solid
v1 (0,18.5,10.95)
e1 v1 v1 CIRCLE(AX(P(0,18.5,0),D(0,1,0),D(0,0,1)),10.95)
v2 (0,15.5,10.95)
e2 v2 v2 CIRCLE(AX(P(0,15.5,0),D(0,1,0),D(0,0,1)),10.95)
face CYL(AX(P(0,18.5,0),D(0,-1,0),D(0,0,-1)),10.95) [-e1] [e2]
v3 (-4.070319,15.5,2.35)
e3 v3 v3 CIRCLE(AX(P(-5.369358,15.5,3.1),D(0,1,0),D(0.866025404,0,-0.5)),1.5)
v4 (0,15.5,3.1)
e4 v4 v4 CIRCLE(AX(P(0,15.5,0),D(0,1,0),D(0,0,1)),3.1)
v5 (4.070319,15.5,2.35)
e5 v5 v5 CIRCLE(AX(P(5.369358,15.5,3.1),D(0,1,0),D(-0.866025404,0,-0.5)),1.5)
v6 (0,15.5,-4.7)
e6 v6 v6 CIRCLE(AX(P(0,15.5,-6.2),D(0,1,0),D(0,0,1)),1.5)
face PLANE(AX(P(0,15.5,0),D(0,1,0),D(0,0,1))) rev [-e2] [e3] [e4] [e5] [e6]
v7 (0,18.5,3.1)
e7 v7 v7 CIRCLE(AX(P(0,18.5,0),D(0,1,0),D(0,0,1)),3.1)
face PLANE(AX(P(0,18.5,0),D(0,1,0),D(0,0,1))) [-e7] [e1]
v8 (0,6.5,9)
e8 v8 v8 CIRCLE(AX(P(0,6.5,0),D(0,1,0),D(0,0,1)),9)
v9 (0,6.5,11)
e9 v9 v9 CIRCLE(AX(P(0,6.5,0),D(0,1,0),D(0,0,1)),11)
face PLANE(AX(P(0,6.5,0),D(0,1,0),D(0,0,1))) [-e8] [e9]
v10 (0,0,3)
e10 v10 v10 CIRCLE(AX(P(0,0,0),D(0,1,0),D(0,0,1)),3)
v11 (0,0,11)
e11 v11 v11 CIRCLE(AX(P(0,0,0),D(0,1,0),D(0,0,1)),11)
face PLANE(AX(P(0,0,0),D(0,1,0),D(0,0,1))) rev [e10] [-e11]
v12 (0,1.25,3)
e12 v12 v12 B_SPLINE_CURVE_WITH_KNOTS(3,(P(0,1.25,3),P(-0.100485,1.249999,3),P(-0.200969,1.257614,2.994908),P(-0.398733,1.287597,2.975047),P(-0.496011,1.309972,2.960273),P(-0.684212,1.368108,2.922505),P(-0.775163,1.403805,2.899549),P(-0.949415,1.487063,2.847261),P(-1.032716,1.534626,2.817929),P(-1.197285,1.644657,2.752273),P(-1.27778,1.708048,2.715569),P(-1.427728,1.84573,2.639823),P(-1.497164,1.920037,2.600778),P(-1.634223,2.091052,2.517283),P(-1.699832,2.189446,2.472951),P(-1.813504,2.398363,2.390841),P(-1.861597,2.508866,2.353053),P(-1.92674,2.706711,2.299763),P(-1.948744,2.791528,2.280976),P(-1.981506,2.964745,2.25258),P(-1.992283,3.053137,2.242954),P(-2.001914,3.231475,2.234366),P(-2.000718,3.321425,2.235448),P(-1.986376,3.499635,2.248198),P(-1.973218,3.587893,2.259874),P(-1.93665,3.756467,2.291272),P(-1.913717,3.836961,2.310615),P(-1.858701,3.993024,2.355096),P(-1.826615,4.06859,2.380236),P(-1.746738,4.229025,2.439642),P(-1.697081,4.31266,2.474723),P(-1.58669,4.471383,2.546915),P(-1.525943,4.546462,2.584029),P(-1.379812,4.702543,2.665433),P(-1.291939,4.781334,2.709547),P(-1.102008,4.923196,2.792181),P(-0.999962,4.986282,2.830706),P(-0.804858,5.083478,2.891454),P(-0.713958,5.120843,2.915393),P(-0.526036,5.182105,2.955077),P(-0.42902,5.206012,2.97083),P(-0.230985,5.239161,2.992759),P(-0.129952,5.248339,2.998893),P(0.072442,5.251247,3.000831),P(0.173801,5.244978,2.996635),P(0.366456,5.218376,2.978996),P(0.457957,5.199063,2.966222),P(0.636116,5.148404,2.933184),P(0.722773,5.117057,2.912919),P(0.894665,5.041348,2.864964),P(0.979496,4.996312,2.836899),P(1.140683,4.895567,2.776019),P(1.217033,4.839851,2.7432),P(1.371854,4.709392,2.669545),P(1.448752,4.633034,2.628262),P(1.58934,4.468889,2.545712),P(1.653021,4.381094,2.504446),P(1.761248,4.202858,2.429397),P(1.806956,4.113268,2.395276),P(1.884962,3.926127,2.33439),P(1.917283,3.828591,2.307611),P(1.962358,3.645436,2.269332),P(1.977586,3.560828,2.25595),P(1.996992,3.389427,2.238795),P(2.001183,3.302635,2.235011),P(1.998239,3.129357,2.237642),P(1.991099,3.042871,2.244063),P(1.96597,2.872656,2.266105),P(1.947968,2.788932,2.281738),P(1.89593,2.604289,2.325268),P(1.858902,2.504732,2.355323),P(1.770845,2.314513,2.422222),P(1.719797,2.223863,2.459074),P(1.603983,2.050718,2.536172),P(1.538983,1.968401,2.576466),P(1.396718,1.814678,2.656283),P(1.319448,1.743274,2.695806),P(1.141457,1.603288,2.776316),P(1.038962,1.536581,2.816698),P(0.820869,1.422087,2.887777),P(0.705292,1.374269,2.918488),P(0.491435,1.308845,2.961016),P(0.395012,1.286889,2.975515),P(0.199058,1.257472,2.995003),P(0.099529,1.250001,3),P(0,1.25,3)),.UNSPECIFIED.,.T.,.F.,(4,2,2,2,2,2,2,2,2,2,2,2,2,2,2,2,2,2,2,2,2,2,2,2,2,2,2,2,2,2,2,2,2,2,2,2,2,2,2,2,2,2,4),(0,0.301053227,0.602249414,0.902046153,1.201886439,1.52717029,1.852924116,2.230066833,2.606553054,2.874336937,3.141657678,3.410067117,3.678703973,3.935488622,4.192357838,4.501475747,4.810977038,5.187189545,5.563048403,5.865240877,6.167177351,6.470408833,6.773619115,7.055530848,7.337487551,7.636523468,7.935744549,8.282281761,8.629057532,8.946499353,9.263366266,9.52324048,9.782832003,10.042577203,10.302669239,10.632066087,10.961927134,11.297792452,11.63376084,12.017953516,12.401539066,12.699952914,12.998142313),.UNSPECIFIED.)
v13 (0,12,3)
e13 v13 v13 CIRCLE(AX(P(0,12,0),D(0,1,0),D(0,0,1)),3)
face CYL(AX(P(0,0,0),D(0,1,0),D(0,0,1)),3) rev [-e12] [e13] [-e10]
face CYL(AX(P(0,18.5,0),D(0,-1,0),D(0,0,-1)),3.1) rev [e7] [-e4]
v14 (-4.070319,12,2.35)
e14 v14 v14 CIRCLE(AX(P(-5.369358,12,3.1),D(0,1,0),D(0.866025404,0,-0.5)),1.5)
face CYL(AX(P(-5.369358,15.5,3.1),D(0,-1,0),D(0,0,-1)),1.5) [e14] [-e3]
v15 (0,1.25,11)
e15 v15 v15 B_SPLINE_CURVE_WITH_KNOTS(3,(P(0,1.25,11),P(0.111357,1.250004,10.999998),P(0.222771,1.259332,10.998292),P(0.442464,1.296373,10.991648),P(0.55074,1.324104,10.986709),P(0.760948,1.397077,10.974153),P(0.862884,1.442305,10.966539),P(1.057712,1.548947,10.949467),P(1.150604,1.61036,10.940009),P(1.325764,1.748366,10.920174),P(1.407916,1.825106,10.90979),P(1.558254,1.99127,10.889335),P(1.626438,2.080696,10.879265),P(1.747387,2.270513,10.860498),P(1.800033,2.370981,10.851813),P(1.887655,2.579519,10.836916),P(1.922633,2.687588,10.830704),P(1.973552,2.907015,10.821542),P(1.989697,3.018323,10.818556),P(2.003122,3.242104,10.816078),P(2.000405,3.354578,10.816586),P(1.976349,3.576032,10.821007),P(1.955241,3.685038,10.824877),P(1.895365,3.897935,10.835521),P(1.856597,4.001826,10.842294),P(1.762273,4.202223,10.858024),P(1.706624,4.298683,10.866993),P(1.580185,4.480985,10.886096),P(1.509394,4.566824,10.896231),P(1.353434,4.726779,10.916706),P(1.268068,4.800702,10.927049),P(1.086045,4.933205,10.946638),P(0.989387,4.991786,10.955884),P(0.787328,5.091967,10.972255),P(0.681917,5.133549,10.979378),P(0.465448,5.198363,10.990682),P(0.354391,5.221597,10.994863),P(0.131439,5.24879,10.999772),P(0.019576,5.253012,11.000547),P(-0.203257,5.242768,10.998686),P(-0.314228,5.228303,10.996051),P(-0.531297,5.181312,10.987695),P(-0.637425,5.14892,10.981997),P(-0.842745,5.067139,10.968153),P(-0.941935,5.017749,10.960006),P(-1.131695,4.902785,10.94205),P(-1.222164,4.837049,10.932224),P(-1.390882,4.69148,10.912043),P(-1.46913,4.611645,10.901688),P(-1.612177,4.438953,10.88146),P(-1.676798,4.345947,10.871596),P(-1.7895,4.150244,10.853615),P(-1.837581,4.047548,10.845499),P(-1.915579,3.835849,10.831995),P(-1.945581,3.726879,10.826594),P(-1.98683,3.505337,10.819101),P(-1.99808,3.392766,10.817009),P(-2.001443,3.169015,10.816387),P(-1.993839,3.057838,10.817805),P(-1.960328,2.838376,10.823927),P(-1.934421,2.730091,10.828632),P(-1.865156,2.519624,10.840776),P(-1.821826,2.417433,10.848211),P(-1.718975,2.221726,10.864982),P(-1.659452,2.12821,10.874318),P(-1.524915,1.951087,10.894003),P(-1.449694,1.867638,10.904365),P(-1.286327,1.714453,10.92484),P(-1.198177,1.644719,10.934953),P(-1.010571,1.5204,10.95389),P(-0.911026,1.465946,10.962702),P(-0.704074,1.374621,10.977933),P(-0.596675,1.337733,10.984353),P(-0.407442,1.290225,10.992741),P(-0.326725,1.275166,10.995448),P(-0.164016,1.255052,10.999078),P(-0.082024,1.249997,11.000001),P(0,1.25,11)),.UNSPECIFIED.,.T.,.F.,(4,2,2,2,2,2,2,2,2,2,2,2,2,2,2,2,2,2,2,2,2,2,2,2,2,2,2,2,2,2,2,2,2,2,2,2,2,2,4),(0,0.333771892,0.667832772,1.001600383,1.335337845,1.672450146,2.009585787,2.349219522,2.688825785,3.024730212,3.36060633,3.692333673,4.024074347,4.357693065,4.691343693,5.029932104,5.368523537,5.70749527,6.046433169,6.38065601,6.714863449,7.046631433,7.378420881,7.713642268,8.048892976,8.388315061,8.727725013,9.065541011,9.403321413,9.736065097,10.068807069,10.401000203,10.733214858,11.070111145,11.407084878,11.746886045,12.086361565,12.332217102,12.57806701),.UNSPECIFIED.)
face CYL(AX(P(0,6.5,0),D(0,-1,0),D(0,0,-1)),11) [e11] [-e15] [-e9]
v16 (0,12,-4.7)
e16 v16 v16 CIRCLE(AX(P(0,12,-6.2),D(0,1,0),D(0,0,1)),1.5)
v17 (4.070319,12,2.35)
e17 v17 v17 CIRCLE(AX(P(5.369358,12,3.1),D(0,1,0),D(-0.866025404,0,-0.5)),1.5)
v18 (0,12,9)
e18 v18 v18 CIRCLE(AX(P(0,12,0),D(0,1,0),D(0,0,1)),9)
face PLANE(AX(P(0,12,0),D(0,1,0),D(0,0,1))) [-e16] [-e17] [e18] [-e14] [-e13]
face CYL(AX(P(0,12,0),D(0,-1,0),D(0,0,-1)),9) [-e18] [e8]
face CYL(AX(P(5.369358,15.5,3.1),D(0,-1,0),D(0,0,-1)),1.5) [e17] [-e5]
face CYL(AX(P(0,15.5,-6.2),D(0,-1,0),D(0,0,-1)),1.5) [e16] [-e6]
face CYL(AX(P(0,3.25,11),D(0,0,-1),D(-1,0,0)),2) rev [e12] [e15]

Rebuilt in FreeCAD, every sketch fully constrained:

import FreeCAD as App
import Part
import Sketcher

doc = App.newDocument("Part")
params = doc.addObject("Spreadsheet::Sheet", "Params")
for row, (alias, value) in enumerate([
    ("sketch1_diameter", "22 mm"),
    ("pad1_length", "6.5 mm"),
    ("sketch2_diameter", "18 mm"),
    ("pad2_length", "5.5 mm"),
    ("sketch3_diameter", "6 mm"),
    ("sketch4_diameter", "3 mm"),
    ("pad3_length", "3.5 mm"),
    ("sketch5_diameter", "21.9 mm"),
    ("sketch5_diameter2", "6.2 mm"),
    ("pad4_length", "3 mm"),
    ("sketch6_diameter", "4 mm"),
], start=1):
    params.set(f"A{row}", alias)
    params.set(f"B{row}", "=" + value)
    params.setAlias(f"B{row}", alias)

body = doc.addObject("PartDesign::Body", "Body")

# Sketch on XZ plane
sketch1 = body.newObject("Sketcher::SketchObject", "Sketch")
sketch1.AttachmentSupport = (doc.getObject("XZ_Plane"), [""])
sketch1.MapMode = "FlatFace"
sketch1.addGeometry(Part.Circle(App.Vector(0, 0, 0), App.Vector(0, 0, 1), 11), False)
sketch1.addConstraint([
    Sketcher.Constraint("Coincident", 0, 3, -1, 1),
    Sketcher.Constraint("Diameter", 0, 22.0),
])
sketch1.setExpression("Constraints[1]", "Params.sketch1_diameter")
pad1 = body.newObject("PartDesign::Pad", "Pad")
pad1.Profile = sketch1
pad1.setExpression("Length", "Params.pad1_length")
pad1.Reversed = True

# Sketch on XZ plane
sketch2 = body.newObject("Sketcher::SketchObject", "Sketch001")
sketch2.AttachmentSupport = (doc.getObject("XZ_Plane"), [""])
sketch2.MapMode = "FlatFace"
sketch2.AttachmentOffset = App.Placement(App.Vector(0, 0, -6.5), App.Rotation())
sketch2.addGeometry(Part.Circle(App.Vector(0, 0, 0), App.Vector(0, 0, 1), 9), False)
sketch2.addConstraint([
    Sketcher.Constraint("Coincident", 0, 3, -1, 1),
    Sketcher.Constraint("Diameter", 0, 18.0),
])
sketch2.setExpression("Constraints[1]", "Params.sketch2_diameter")
pad2 = body.newObject("PartDesign::Pad", "Pad001")
pad2.Profile = sketch2
pad2.setExpression("Length", "Params.pad2_length")
pad2.Reversed = True

# Sketch on XZ plane
sketch3 = body.newObject("Sketcher::SketchObject", "Sketch002")
sketch3.AttachmentSupport = (doc.getObject("XZ_Plane"), [""])
sketch3.MapMode = "FlatFace"
sketch3.AttachmentOffset = App.Placement(App.Vector(0, 0, -12), App.Rotation())
sketch3.addGeometry(Part.Circle(App.Vector(0, 0, 0), App.Vector(0, 0, 1), 3), False)
sketch3.addConstraint([
    Sketcher.Constraint("Coincident", 0, 3, -1, 1),
    Sketcher.Constraint("Diameter", 0, 6.0),
])
sketch3.setExpression("Constraints[1]", "Params.sketch3_diameter")
pocket1 = body.newObject("PartDesign::Pocket", "Pocket")
pocket1.Profile = sketch3
pocket1.Type = "ThroughAll"
pocket1.Reversed = True

# Sketch on XZ plane
sketch4 = body.newObject("Sketcher::SketchObject", "Sketch003")
sketch4.AttachmentSupport = (doc.getObject("XZ_Plane"), [""])
sketch4.MapMode = "FlatFace"
sketch4.AttachmentOffset = App.Placement(App.Vector(0, 0, -12), App.Rotation())
sketch4.addGeometry(Part.Circle(App.Vector(0, -6.2, 0), App.Vector(0, 0, 1), 1.5), False)
sketch4.addConstraint([
    Sketcher.Constraint("PointOnObject", 0, 3, -2),
    Sketcher.Constraint("Diameter", 0, 3.0),
    Sketcher.Constraint("DistanceY", 0, 3, -1, 1, 6.2),
])
sketch4.setExpression("Constraints[1]", "Params.sketch4_diameter")
pad3 = body.newObject("PartDesign::Pad", "Pad002")
pad3.Profile = sketch4
pad3.setExpression("Length", "Params.pad3_length")
pad3.Reversed = True
doc.recompute()

polarpattern = body.newObject("PartDesign::PolarPattern", "PolarPattern")
polarpattern.Originals = [pad3]
polarpattern.Axis = (doc.getObject("Y_Axis"), [""])
polarpattern.Angle = 360
polarpattern.Occurrences = 3
body.Tip = polarpattern

# Sketch on XZ plane
sketch5 = body.newObject("Sketcher::SketchObject", "Sketch004")
sketch5.AttachmentSupport = (doc.getObject("XZ_Plane"), [""])
sketch5.MapMode = "FlatFace"
sketch5.AttachmentOffset = App.Placement(App.Vector(0, 0, -15.5), App.Rotation())
sketch5.addGeometry([
    Part.Circle(App.Vector(0, 0, 0), App.Vector(0, 0, 1), 10.9),
    Part.Circle(App.Vector(0, 0, 0), App.Vector(0, 0, 1), 3.1),
], False)
sketch5.addConstraint([
    Sketcher.Constraint("Coincident", 0, 3, -1, 1),
    Sketcher.Constraint("Coincident", 1, 3, -1, 1),
    Sketcher.Constraint("Diameter", 0, 21.9),
    Sketcher.Constraint("Diameter", 1, 6.2),
])
sketch5.setExpression("Constraints[2]", "Params.sketch5_diameter")
sketch5.setExpression("Constraints[3]", "Params.sketch5_diameter2")
pad4 = body.newObject("PartDesign::Pad", "Pad003")
pad4.Profile = sketch5
pad4.setExpression("Length", "Params.pad4_length")
pad4.Reversed = True

# Sketch on XY plane
sketch6 = body.newObject("Sketcher::SketchObject", "Sketch005")
sketch6.AttachmentSupport = (doc.getObject("XY_Plane"), [""])
sketch6.MapMode = "FlatFace"
sketch6.addGeometry(Part.Circle(App.Vector(0, 3.2, 0), App.Vector(0, 0, 1), 2), False)
sketch6.addConstraint([
    Sketcher.Constraint("PointOnObject", 0, 3, -2),
    Sketcher.Constraint("Diameter", 0, 4.0),
    Sketcher.Constraint("DistanceY", -1, 1, 0, 3, 3.25),
])
sketch6.setExpression("Constraints[1]", "Params.sketch6_diameter")
pocket2 = body.newObject("PartDesign::Pocket", "Pocket001")
pocket2.Profile = sketch6
pocket2.Type = "ThroughAll"
pocket2.Reversed = True

doc.recompute()
